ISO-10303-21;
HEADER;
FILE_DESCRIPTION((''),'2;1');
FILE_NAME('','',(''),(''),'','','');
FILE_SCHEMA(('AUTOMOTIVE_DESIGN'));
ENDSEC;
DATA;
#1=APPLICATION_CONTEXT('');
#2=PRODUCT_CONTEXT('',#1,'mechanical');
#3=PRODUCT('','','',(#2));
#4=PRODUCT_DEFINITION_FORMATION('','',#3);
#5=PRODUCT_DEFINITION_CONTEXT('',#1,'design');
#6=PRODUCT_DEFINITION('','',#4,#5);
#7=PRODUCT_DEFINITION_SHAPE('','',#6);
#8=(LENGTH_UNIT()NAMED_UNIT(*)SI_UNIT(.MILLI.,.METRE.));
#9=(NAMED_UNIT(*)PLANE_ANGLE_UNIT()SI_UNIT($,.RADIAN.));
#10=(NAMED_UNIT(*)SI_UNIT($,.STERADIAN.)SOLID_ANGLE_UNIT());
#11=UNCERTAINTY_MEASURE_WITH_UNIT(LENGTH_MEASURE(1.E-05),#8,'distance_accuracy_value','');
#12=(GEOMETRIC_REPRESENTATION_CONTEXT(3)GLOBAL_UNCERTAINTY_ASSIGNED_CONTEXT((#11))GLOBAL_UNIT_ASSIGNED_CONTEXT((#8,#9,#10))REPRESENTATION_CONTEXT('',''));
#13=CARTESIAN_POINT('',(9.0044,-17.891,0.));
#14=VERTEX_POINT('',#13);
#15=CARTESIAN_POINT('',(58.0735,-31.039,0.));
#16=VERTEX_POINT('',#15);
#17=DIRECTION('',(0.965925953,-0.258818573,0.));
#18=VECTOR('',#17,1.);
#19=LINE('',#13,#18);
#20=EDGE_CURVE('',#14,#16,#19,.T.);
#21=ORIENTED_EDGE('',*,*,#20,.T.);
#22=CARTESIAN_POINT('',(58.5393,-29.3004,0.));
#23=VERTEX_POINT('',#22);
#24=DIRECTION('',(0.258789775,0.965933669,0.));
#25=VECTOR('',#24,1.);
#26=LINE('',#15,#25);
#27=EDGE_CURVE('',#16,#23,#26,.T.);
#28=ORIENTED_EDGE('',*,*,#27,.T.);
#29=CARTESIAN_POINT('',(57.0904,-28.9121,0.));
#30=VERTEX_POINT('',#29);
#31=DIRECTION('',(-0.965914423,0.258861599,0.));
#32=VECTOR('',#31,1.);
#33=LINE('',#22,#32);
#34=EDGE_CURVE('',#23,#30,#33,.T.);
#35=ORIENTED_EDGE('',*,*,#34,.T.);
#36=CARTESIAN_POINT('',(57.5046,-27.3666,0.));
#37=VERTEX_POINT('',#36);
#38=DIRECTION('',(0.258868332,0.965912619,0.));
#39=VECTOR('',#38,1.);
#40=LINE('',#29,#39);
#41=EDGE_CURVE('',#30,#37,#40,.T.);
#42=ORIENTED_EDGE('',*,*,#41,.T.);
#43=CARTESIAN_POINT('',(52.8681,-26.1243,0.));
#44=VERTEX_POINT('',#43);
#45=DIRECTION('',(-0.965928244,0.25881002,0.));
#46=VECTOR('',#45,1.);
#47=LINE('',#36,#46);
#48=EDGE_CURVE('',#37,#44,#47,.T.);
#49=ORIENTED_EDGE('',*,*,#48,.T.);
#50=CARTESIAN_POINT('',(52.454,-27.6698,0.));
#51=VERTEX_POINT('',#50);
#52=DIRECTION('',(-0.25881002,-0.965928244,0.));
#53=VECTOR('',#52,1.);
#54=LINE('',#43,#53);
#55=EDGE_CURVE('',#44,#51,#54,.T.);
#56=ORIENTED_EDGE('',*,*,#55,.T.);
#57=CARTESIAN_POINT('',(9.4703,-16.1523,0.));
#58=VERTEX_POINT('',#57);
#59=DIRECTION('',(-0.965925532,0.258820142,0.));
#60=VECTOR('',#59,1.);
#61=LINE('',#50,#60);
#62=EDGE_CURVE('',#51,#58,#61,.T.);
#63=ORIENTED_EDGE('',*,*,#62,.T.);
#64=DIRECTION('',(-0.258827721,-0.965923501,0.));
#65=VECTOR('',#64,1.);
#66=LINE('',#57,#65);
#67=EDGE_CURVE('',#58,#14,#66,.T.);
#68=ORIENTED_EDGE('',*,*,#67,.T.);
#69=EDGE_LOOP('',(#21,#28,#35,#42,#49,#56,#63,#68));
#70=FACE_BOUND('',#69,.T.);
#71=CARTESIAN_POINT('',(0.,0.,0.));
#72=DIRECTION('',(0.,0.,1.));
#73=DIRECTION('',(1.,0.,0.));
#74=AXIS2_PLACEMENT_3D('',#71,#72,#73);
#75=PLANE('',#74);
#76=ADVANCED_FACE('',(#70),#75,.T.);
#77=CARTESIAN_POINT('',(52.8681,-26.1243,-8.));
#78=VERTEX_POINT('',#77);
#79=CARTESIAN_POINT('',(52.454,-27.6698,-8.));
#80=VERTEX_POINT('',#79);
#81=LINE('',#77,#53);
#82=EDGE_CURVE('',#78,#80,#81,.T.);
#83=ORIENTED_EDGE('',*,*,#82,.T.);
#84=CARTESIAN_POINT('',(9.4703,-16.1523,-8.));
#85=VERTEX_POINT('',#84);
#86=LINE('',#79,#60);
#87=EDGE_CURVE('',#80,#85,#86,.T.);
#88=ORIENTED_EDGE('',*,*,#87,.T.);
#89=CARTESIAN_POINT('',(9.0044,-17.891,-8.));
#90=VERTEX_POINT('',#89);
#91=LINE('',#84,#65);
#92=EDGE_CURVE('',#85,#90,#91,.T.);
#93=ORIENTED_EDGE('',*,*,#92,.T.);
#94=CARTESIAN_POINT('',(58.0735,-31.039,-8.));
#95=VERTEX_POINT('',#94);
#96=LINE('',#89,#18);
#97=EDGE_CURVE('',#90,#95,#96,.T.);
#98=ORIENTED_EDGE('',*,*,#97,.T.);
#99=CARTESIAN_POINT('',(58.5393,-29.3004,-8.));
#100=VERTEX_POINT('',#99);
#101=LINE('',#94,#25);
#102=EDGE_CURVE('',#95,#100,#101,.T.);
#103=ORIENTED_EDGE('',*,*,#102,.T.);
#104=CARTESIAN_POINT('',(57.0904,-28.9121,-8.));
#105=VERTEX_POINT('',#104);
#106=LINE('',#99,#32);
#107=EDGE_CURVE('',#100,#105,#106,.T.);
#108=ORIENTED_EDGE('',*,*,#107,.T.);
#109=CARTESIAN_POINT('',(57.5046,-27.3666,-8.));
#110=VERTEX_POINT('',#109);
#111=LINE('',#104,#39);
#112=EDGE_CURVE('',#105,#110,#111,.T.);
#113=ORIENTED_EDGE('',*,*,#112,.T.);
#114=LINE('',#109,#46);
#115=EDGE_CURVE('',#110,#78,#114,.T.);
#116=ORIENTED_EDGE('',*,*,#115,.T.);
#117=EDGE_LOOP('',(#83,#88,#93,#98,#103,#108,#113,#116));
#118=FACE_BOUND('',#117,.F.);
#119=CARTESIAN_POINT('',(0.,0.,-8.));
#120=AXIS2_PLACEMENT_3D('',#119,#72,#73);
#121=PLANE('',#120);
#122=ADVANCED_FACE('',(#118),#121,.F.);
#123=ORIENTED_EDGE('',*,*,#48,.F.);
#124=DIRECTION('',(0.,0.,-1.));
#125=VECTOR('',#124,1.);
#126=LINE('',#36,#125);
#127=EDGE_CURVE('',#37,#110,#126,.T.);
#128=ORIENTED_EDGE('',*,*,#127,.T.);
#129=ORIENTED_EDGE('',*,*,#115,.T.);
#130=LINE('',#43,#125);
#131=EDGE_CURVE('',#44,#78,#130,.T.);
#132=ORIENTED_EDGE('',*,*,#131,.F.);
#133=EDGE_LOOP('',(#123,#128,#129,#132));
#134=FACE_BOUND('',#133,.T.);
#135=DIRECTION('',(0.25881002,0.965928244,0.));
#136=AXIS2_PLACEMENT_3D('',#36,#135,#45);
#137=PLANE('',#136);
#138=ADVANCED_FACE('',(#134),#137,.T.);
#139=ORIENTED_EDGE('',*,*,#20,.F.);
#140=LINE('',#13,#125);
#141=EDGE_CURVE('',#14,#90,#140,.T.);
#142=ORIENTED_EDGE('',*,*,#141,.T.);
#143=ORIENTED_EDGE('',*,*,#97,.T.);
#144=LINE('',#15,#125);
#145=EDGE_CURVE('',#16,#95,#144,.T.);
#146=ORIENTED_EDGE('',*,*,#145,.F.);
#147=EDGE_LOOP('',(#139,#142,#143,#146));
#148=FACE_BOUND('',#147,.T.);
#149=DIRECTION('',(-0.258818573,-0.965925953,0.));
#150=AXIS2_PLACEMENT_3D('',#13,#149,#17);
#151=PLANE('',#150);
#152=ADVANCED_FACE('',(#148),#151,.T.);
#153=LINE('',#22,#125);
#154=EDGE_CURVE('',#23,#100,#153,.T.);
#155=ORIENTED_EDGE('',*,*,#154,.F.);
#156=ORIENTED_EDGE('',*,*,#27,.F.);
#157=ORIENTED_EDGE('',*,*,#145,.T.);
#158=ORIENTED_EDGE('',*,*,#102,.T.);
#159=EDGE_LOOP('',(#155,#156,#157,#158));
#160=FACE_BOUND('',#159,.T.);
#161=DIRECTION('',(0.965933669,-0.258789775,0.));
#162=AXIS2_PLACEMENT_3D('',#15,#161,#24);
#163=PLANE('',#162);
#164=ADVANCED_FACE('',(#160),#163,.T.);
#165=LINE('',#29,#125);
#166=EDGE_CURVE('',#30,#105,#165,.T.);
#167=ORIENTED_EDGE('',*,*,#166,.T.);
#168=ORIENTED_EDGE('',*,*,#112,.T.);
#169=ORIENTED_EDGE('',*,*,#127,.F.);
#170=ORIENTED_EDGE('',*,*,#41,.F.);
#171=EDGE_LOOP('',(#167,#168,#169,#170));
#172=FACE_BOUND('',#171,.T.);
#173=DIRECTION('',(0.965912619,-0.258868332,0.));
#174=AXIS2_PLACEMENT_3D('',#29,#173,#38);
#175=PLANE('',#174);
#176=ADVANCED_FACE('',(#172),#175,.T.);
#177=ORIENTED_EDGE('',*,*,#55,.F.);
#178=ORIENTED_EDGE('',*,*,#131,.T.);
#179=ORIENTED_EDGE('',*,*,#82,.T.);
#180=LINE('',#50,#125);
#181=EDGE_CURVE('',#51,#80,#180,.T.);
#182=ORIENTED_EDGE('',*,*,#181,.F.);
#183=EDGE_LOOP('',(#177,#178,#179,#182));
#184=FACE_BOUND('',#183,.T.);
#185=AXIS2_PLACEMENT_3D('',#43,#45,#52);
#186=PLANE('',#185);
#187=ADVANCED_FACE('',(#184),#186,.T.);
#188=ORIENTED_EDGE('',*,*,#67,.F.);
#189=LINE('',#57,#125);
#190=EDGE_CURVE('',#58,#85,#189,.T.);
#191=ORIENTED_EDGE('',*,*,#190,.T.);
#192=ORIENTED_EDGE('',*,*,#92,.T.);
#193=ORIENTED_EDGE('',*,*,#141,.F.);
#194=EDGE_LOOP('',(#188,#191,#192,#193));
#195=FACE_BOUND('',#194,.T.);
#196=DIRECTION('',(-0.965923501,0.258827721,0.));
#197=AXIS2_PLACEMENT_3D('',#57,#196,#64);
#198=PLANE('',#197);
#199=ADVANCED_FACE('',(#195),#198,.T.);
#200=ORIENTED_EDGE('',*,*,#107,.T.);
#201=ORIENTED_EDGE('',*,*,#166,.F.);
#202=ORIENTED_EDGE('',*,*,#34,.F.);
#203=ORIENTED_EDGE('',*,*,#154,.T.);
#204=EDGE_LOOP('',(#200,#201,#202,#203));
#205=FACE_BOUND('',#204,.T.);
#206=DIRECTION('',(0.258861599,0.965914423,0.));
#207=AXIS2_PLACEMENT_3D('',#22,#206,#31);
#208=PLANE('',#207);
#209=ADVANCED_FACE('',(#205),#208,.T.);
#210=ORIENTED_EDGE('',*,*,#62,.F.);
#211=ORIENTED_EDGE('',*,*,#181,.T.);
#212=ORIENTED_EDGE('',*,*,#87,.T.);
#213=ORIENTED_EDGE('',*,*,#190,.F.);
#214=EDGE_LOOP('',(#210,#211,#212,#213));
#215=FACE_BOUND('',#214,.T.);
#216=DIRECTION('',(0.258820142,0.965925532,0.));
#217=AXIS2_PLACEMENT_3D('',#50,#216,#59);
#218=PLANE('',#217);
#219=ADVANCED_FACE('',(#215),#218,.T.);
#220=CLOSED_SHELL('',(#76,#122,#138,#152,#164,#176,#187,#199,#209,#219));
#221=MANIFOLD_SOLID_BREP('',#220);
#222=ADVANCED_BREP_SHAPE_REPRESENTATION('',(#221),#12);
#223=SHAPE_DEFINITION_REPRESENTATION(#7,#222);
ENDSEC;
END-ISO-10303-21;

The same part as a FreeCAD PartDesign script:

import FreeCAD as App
import Part
import Sketcher
from FreeCAD import Vector
Q = App.Units.Quantity


def add_polygon(sketch, points):
    """Adds a closed chain of lines whose ends are joined by coincident constraints."""
    first, n = sketch.GeometryCount, len(points)
    for a, b in zip(points, points[1:] + points[:1]):
        sketch.addGeometry(Part.LineSegment(App.Vector(*a, 0), App.Vector(*b, 0)), False)
    for i in range(n):
        sketch.addConstraint(Sketcher.Constraint("Coincident", first + i, 2, first + (i + 1) % n, 1))

doc = App.newDocument("Part")
params = doc.addObject("Spreadsheet::Sheet", "Params")
for row, (alias, value) in enumerate([
    ("sketch1_length", "1.8 mm"),
    ("sketch1_length2", "50.8 mm"),
    ("sketch1_length3", "1.5 mm"),
    ("sketch1_length4", "1.6 mm"),
    ("sketch1_length5", "4.8 mm"),
    ("pad1_length", "8 mm"),
], start=1):
    params.set(f"A{row}", alias)
    params.set(f"B{row}", "=" + value)
    params.setAlias(f"B{row}", alias)

body = doc.addObject("PartDesign::Body", "Body")

sketch1 = body.newObject("Sketcher::SketchObject", "Sketch")
sketch1.AttachmentSupport = (doc.getObject("XY_Plane"), [""])
sketch1.MapMode = "FlatFace"
add_polygon(sketch1, [(9.4703, -16.1523), (9.0044, -17.891), (58.0735, -31.039), (58.5393, -29.3004), (57.0904, -28.9121), (57.5046, -27.3666), (52.8681, -26.1243), (52.454, -27.6698)])
sketch1.addConstraint([
    Sketcher.Constraint("Perpendicular", 0, 1),
    Sketcher.Constraint("Perpendicular", 1, 2),
    Sketcher.Constraint("Perpendicular", 2, 3),
    Sketcher.Constraint("Perpendicular", 3, 4),
    Sketcher.Constraint("Perpendicular", 4, 5),
    Sketcher.Constraint("Perpendicular", 5, 6),
    Sketcher.Constraint("Perpendicular", 6, 7),
    Sketcher.Constraint("Equal", 0, 2),
    Sketcher.Constraint("Angle", 0, Q("-105.0005 deg")),
    Sketcher.Constraint("Distance", 0, Q("1.8 mm")),
    Sketcher.Constraint("Distance", 1, Q("50.8 mm")),
    Sketcher.Constraint("Distance", 3, Q("1.5 mm")),
    Sketcher.Constraint("Distance", 4, Q("1.6 mm")),
    Sketcher.Constraint("Distance", 5, Q("4.8 mm")),
    Sketcher.Constraint("DistanceY", 0, 2, -1, 1, Q("17.891 mm")),
    Sketcher.Constraint("DistanceX", -1, 1, 5, 2, Q("52.868 mm")),
])
sketch1.setExpression("Constraints[17]", "Params.sketch1_length")
sketch1.setExpression("Constraints[18]", "Params.sketch1_length2")
sketch1.setExpression("Constraints[19]", "Params.sketch1_length3")
sketch1.setExpression("Constraints[20]", "Params.sketch1_length4")
sketch1.setExpression("Constraints[21]", "Params.sketch1_length5")
pad1 = body.newObject("PartDesign::Pad", "Pad")
pad1.Profile = sketch1
pad1.setExpression("Length", "Params.pad1_length")
pad1.Reversed = True

doc.recompute()
